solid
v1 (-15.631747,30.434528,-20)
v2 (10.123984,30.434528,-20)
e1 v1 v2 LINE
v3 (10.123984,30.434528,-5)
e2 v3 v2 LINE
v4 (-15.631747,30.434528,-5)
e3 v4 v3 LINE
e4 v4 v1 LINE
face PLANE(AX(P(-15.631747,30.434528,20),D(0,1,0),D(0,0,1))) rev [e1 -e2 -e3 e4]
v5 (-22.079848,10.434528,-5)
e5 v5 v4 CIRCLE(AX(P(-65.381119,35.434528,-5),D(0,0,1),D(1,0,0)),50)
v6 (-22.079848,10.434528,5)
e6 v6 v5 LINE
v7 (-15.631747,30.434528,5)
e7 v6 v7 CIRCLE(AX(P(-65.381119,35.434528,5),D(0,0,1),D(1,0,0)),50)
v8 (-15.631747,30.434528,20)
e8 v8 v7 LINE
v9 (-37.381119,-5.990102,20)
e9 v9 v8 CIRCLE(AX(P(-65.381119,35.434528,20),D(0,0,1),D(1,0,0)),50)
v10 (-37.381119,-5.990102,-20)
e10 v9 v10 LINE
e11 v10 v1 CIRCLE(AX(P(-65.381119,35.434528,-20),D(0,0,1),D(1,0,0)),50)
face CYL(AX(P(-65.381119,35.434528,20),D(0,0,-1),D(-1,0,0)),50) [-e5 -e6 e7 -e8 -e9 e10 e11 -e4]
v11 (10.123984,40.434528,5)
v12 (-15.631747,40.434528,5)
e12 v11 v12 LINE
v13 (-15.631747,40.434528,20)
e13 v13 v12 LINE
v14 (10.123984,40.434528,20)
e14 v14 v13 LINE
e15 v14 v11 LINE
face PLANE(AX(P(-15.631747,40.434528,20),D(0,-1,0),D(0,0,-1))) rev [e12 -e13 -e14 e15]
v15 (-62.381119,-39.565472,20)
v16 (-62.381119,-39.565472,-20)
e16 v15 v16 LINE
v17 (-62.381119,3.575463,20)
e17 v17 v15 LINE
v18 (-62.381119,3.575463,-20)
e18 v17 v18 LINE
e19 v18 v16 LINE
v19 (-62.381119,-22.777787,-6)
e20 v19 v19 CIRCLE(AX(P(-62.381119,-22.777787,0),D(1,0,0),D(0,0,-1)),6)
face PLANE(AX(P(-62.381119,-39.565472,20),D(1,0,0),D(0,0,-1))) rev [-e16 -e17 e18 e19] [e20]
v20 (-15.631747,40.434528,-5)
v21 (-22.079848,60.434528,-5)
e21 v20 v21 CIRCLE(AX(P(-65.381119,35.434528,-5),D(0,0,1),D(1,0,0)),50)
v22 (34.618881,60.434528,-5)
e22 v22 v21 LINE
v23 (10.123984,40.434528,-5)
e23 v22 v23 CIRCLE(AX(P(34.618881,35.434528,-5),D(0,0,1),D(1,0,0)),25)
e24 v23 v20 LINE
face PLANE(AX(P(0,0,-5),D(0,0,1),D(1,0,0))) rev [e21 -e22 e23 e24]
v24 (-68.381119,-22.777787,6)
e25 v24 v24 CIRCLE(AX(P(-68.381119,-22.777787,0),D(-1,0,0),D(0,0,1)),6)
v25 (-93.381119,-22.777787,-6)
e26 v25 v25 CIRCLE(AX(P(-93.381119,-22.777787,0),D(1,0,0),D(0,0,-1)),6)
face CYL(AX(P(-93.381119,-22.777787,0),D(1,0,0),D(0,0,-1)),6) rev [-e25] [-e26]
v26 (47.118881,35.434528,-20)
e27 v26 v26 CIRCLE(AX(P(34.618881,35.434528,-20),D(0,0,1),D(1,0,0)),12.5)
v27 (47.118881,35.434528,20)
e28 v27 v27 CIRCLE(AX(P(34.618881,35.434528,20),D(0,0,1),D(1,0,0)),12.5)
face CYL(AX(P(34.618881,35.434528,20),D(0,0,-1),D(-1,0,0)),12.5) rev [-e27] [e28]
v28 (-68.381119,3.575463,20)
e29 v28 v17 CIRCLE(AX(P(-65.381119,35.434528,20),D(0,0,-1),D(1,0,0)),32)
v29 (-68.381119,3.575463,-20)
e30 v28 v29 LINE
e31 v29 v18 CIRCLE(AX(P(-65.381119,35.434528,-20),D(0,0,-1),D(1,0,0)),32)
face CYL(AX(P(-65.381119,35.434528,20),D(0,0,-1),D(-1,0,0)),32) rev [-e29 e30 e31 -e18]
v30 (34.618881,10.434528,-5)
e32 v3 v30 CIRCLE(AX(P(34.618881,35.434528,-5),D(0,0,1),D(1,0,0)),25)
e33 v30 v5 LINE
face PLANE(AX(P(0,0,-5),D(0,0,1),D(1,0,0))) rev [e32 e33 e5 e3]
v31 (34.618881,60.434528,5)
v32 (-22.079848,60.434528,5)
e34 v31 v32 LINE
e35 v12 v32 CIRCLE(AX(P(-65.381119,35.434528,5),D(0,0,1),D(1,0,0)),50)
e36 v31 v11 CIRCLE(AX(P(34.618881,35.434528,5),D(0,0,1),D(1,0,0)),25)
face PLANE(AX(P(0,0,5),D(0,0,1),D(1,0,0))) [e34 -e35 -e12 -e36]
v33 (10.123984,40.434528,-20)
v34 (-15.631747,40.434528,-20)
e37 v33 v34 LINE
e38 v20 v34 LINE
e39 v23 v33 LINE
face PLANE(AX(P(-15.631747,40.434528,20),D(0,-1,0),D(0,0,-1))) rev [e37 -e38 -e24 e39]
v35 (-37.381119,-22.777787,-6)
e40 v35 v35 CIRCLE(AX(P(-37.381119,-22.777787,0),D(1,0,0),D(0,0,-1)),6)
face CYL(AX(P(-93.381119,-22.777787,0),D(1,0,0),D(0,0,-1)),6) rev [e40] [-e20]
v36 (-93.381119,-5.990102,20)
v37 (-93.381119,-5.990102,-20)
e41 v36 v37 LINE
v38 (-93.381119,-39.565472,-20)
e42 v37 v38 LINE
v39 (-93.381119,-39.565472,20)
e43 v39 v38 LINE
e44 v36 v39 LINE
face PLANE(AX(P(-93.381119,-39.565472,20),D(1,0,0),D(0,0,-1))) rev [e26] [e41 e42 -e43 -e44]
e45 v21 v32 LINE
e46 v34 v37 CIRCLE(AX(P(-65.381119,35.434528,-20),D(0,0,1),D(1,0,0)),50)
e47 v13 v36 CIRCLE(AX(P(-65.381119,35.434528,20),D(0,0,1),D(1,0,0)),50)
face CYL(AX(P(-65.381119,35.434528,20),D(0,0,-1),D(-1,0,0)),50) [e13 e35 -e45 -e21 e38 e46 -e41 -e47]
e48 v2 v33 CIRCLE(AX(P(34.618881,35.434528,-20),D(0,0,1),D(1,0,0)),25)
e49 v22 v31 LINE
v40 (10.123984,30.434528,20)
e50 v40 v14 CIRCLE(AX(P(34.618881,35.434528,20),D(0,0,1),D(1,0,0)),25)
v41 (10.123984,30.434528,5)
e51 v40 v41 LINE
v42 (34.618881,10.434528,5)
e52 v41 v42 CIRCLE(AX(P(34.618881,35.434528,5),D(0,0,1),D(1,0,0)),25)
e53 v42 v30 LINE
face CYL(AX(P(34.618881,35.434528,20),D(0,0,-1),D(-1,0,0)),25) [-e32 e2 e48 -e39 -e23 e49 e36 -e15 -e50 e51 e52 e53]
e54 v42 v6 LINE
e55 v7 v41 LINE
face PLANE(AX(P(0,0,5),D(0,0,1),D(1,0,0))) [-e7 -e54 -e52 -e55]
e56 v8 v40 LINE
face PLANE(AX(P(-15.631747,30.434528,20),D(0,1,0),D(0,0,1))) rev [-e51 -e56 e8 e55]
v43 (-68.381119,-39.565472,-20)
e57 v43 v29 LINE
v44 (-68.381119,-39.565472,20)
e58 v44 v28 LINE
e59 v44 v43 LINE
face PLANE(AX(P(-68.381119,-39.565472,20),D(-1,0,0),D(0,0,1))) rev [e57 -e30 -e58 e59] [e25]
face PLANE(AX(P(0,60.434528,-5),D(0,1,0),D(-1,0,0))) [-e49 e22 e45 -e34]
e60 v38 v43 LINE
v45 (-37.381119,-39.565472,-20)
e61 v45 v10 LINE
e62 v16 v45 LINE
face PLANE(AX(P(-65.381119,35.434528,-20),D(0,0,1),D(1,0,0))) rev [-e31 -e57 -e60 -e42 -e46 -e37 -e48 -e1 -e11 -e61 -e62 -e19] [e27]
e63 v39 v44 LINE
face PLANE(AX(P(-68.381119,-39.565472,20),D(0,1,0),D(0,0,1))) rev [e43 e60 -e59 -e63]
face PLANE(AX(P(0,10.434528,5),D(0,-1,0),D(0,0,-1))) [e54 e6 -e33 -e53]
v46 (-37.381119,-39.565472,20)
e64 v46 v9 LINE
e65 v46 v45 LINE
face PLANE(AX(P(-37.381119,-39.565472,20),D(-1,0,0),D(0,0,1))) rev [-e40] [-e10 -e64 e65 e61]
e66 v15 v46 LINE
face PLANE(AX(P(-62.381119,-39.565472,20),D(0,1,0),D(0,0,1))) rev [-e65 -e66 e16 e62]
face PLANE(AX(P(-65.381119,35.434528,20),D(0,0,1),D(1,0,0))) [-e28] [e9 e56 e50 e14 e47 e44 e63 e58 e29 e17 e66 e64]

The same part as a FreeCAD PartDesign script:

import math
import FreeCAD as App
import Part
import Sketcher

V = App.Vector
Q = App.Units.Quantity

doc = App.newDocument("Part")
body = doc.addObject("PartDesign::Body", "Body")

# Sketch on XY plane
sketch1 = body.newObject("Sketcher::SketchObject", "Sketch")
sketch1.AttachmentSupport = (doc.getObject("XY_Plane"), [""])
sketch1.MapMode = "FlatFace"
sketch1.addGeometry([
    Part.LineSegment(V(-68, -40, 0), V(-68, 4, 0)),  # 0
    Part.ArcOfCircle(Part.Circle(V(-65, 35, 0), V(0, 0, 1), 32), math.radians(-85), math.radians(265)),  # 1
    Part.LineSegment(V(-62, 4, 0), V(-62, -40, 0)),  # 2
    Part.LineSegment(V(-62, -40, 0), V(-37, -40, 0)),  # 3
    Part.LineSegment(V(-37, -40, 0), V(-37, -6, 0)),  # 4
    Part.ArcOfCircle(Part.Circle(V(-65, 35, 0), V(0, 0, 1), 50), math.radians(-56), math.radians(-6)),  # 5
    Part.LineSegment(V(-16, 30, 0), V(10, 30, 0)),  # 6
    Part.ArcOfCircle(Part.Circle(V(35, 35, 0), V(0, 0, 1), 25), math.radians(-168), math.radians(168)),  # 7
    Part.LineSegment(V(10, 40, 0), V(-16, 40, 0)),  # 8
    Part.ArcOfCircle(Part.Circle(V(-65, 35, 0), V(0, 0, 1), 50), math.radians(6), math.radians(236)),  # 9
    Part.LineSegment(V(-93, -6, 0), V(-93, -40, 0)),  # 10
    Part.LineSegment(V(-93, -40, 0), V(-68, -40, 0)),  # 11
    Part.Circle(V(35, 35, 0), V(0, 0, 1), 12),  # 12
], False)
sketch1.addConstraint([
    Sketcher.Constraint("Coincident", 0, 2, 1, 2),
    Sketcher.Constraint("Coincident", 1, 1, 2, 1),
    Sketcher.Constraint("Coincident", 2, 2, 3, 1),
    Sketcher.Constraint("Coincident", 3, 2, 4, 1),
    Sketcher.Constraint("Coincident", 4, 2, 5, 1),
    Sketcher.Constraint("Coincident", 5, 2, 6, 1),
    Sketcher.Constraint("Coincident", 6, 2, 7, 1),
    Sketcher.Constraint("Coincident", 7, 2, 8, 1),
    Sketcher.Constraint("Coincident", 8, 2, 9, 1),
    Sketcher.Constraint("Coincident", 9, 2, 10, 1),
    Sketcher.Constraint("Coincident", 10, 2, 11, 1),
    Sketcher.Constraint("Coincident", 11, 2, 0, 1),
    Sketcher.Constraint("Vertical", 0),
    Sketcher.Constraint("Vertical", 2),
    Sketcher.Constraint("Horizontal", 3),
    Sketcher.Constraint("Vertical", 4),
    Sketcher.Constraint("Horizontal", 6),
    Sketcher.Constraint("Horizontal", 8),
    Sketcher.Constraint("Vertical", 10),
    Sketcher.Constraint("Horizontal", 11),
    Sketcher.Constraint("Coincident", 5, 3, 1, 3),
    Sketcher.Constraint("Coincident", 9, 3, 1, 3),
    Sketcher.Constraint("Coincident", 12, 3, 7, 3),
    Sketcher.Constraint("Equal", 5, 9),
    Sketcher.Constraint("Horizontal", 5, 3, 7, 3),
    Sketcher.Constraint("Horizontal", 0, 2, 1, 1),
    Sketcher.Constraint("Horizontal", 4, 2, 9, 2),
    Sketcher.Constraint("Horizontal", 3, 2, 10, 2),
    Sketcher.Constraint("Vertical", 6, 2, 7, 2),
    Sketcher.Constraint("Diameter", 12, Q("25 mm")),
    Sketcher.Constraint("Radius", 1, Q("32 mm")),
    Sketcher.Constraint("Radius", 5, Q("50 mm")),
    Sketcher.Constraint("Radius", 7, Q("25 mm")),
    Sketcher.Constraint("DistanceX", 3, 1, 3, 2, Q("25 mm")),
    Sketcher.Constraint("DistanceX", 1, 3, 7, 3, Q("100 mm")),
    Sketcher.Constraint("DistanceX", 0, 2, 1, 3, Q("3 mm")),
    Sketcher.Constraint("DistanceY", 2, 2, 1, 3, Q("75 mm")),
    Sketcher.Constraint("DistanceY", 5, 2, 1, 3, Q("5 mm")),
    Sketcher.Constraint("DistanceX", 1, 3, -1, 1, Q("65.381119 mm")),
    Sketcher.Constraint("DistanceY", -1, 1, 1, 3, Q("35.434528 mm")),
])
pad1 = body.newObject("PartDesign::Pad", "Pad")
pad1.Profile = sketch1
pad1.Length = 40
pad1.Midplane = True

# Sketch on YZ plane
sketch2 = body.newObject("Sketcher::SketchObject", "Sketch001")
sketch2.AttachmentSupport = (doc.getObject("YZ_Plane"), [""])
sketch2.MapMode = "FlatFace"
sketch2.AttachmentOffset = App.Placement(V(0, 0, -37.381119), App.Rotation())
sketch2.addGeometry(Part.Circle(V(-23, 0, 0), V(0, 0, 1), 6), False)
sketch2.addConstraint([
    Sketcher.Constraint("PointOnObject", 0, 3, -1),
    Sketcher.Constraint("Diameter", 0, Q("12 mm")),
    Sketcher.Constraint("DistanceX", 0, 3, -1, 1, Q("22.777787 mm")),
])
pocket1 = body.newObject("PartDesign::Pocket", "Pocket")
pocket1.Profile = sketch2
pocket1.Length = 56

# Sketch on XY plane
sketch3 = body.newObject("Sketcher::SketchObject", "Sketch002")
sketch3.AttachmentSupport = (doc.getObject("XY_Plane"), [""])
sketch3.MapMode = "FlatFace"
sketch3.addGeometry([
    Part.ArcOfCircle(Part.Circle(V(35, 35, 0), V(0, 0, 1), 25), math.radians(90), math.radians(168)),  # 0
    Part.LineSegment(V(35, 60, 0), V(-22, 60, 0)),  # 1
    Part.ArcOfCircle(Part.Circle(V(-65, 35, 0), V(0, 0, 1), 50), math.radians(6), math.radians(30)),  # 2
    Part.LineSegment(V(-16, 40, 0), V(10, 40, 0)),  # 3
    Part.LineSegment(V(-22, 10, 0), V(35, 10, 0)),  # 4
    Part.ArcOfCircle(Part.Circle(V(35, 35, 0), V(0, 0, 1), 25), math.radians(-168), math.radians(-90)),  # 5
    Part.LineSegment(V(10, 30, 0), V(-16, 30, 0)),  # 6
    Part.ArcOfCircle(Part.Circle(V(-65, 35, 0), V(0, 0, 1), 50), math.radians(-30), math.radians(-6)),  # 7
], False)
sketch3.addConstraint([
    Sketcher.Constraint("Tangent", 0, 1, 1, 1),
    Sketcher.Constraint("Coincident", 1, 2, 2, 2),
    Sketcher.Constraint("Coincident", 2, 1, 3, 1),
    Sketcher.Constraint("Coincident", 3, 2, 0, 2),
    Sketcher.Constraint("Tangent", 4, 2, 5, 2),
    Sketcher.Constraint("Coincident", 5, 1, 6, 1),
    Sketcher.Constraint("Coincident", 6, 2, 7, 2),
    Sketcher.Constraint("Coincident", 7, 1, 4, 1),
    Sketcher.Constraint("Horizontal", 1),
    Sketcher.Constraint("Horizontal", 3),
    Sketcher.Constraint("Horizontal", 4),
    Sketcher.Constraint("Horizontal", 6),
    Sketcher.Constraint("Coincident", 5, 3, 0, 3),
    Sketcher.Constraint("Coincident", 7, 3, 2, 3),
    Sketcher.Constraint("Equal", 0, 5),
    Sketcher.Constraint("Equal", 2, 7),
    Sketcher.Constraint("Horizontal", 0, 3, 2, 3),
    Sketcher.Constraint("Vertical", 3, 2, 5, 1),
    Sketcher.Constraint("Radius", 0, Q("25 mm")),
    Sketcher.Constraint("Radius", 2, Q("50 mm")),
    Sketcher.Constraint("DistanceX", 2, 3, 0, 3, Q("100 mm")),
    Sketcher.Constraint("DistanceY", 2, 1, 1, 2, Q("20 mm")),
    Sketcher.Constraint("DistanceX", -1, 1, 0, 3, Q("34.618881 mm")),
    Sketcher.Constraint("DistanceY", -1, 1, 0, 3, Q("35.434528 mm")),
])
pad2 = body.newObject("PartDesign::Pad", "Pad001")
pad2.Profile = sketch3
pad2.Type = "TwoLengths"
pad2.Length = 5
pad2.Length2 = 5

doc.recompute()
